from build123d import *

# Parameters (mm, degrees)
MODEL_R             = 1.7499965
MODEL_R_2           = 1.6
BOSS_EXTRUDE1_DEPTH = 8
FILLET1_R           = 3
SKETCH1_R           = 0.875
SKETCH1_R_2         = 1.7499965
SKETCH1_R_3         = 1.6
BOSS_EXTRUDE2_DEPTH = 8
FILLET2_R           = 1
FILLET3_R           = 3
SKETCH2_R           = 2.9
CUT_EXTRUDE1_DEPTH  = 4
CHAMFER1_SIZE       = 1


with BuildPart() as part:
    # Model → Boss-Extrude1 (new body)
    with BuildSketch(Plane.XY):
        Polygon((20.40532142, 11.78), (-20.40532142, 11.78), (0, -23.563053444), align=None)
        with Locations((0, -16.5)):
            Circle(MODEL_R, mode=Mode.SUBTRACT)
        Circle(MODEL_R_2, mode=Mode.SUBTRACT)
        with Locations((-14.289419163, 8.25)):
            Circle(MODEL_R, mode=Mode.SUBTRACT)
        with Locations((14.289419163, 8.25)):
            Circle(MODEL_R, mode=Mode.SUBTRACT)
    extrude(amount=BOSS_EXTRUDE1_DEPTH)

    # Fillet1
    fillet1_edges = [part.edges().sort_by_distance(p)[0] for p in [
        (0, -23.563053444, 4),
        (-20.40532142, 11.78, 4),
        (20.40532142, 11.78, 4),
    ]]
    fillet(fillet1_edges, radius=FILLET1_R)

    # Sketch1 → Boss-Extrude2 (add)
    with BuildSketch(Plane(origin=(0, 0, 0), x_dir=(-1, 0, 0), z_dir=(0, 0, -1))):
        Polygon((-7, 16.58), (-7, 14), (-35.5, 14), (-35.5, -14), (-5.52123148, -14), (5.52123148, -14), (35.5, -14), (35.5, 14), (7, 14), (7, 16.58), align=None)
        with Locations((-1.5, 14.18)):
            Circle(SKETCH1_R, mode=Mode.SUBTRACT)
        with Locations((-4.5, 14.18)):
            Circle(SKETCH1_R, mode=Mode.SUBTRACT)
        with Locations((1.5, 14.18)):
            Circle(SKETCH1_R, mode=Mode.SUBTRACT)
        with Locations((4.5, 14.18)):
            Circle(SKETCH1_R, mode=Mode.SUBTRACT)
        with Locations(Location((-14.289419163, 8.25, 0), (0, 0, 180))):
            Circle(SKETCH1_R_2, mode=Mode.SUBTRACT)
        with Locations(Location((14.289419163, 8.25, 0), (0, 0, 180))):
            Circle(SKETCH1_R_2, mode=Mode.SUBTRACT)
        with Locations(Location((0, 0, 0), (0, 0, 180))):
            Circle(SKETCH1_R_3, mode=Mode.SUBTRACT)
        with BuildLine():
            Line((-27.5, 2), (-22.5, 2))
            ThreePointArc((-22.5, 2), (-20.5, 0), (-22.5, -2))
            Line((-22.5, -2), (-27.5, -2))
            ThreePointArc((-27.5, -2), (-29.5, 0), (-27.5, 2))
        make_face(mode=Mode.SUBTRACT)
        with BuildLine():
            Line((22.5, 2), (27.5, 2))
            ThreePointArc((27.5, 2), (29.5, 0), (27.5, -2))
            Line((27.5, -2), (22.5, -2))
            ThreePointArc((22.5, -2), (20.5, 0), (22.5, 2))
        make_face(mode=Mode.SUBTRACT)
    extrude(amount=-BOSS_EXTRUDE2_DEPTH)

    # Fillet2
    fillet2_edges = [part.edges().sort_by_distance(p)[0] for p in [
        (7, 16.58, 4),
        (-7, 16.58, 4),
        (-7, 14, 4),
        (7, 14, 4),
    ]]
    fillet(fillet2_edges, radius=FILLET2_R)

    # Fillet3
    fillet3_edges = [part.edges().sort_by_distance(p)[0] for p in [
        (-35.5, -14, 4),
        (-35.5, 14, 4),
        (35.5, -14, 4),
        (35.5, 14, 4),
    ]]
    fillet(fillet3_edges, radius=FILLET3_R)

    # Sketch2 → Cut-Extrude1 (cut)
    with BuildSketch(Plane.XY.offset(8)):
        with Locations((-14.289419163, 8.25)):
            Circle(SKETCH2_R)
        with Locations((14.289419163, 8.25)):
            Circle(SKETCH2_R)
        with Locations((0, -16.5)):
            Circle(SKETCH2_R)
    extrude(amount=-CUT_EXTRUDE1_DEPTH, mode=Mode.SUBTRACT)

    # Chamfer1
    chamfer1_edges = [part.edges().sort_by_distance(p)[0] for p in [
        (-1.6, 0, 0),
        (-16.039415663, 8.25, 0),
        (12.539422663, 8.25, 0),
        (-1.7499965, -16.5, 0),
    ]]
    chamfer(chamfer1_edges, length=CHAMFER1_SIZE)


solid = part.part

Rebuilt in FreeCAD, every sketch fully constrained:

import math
import FreeCAD as App
import Part
import Sketcher
Q = App.Units.Quantity


def edges_at(feature, points):
    """Names of the edges that pass closest to the given points."""
    edges = feature.Shape.Edges
    near = lambda p: min(range(len(edges)), key=lambda i: edges[i].distToShape(Part.Vertex(*p))[0])
    return sorted({f"Edge{near(p) + 1}" for p in points})

doc = App.newDocument("Part")
params = doc.addObject("Spreadsheet::Sheet", "Params")
for row, (alias, value) in enumerate([
    ("sketch1_diameter", "3.2 mm"),
    ("pad1_length", "8 mm"),
    ("fillet_radius", "3 mm"),
    ("sketch2_radius", "2 mm"),
    ("sketch2_diameter", "3.2 mm"),
    ("sketch2_diameter2", "1.75 mm"),
    ("sketch2_width", "71 mm"),
    ("sketch2_width2", "14 mm"),
    ("pad2_length", "8 mm"),
    ("fillet2_radius", "1 mm"),
    ("fillet3_radius", "3 mm"),
    ("sketch3_diameter", "5.8 mm"),
    ("pocket1_length", "4 mm"),
    ("chamfer_size", "1 mm"),
], start=1):
    params.set(f"A{row}", alias)
    params.set(f"B{row}", "=" + value)
    params.setAlias(f"B{row}", alias)

body = doc.addObject("PartDesign::Body", "Body")

sketch1 = body.newObject("Sketcher::SketchObject", "Sketch")
sketch1.AttachmentSupport = (doc.getObject("XY_Plane"), [""])
sketch1.MapMode = "FlatFace"
sketch1.addGeometry([
    Part.LineSegment(App.Vector(20.405321, 11.78, 0), App.Vector(-20.405321, 11.78, 0)),
    Part.LineSegment(App.Vector(-20.405321, 11.78, 0), App.Vector(0, -23.563053, 0)),
    Part.LineSegment(App.Vector(0, -23.563053, 0), App.Vector(20.405321, 11.78, 0)),
    Part.Circle(App.Vector(0, -16.5, 0), App.Vector(0, 0, 1), 1.749996),
    Part.Circle(App.Vector(-14.289419, 8.25, 0), App.Vector(0, 0, 1), 1.749996),
    Part.Circle(App.Vector(0, 0, 0), App.Vector(0, 0, 1), 1.6),
    Part.Circle(App.Vector(14.289419, 8.25, 0), App.Vector(0, 0, 1), 1.749996),
], False)
sketch1.addConstraint([
    Sketcher.Constraint("Coincident", 0, 2, 1, 1),
    Sketcher.Constraint("Coincident", 1, 2, 2, 1),
    Sketcher.Constraint("Coincident", 2, 2, 0, 1),
    Sketcher.Constraint("Horizontal", 0),
    Sketcher.Constraint("Coincident", 5, 3, -1, 1),
    Sketcher.Constraint("Equal", 3, 4),
    Sketcher.Constraint("Equal", 4, 6),
    Sketcher.Constraint("Symmetric", 4, 3, 6, 3, -2),
    Sketcher.Constraint("PointOnObject", 3, 3, -2),
    Sketcher.Constraint("PointOnObject", 1, 2, -2),
    Sketcher.Constraint("Equal", 1, 2),
    Sketcher.Constraint("Diameter", 5, Q("3.2 mm")),
    Sketcher.Constraint("Angle", 1, Q("-60 deg")),
    Sketcher.Constraint("DistanceY", 3, 3, -1, 1, Q("16.5 mm")),
    Sketcher.Constraint("DistanceY", -1, 1, 4, 3, Q("8.25 mm")),
    Sketcher.Constraint("DistanceY", -1, 1, 0, 2, Q("11.78 mm")),
    Sketcher.Constraint("Diameter", 3, Q("3.499993 mm")),
    Sketcher.Constraint("DistanceX", 0, 2, 0, 1, Q("40.810643 mm")),
    Sketcher.Constraint("DistanceX", 4, 3, -1, 1, Q("14.289419 mm")),
])
sketch1.setExpression("Constraints[11]", "Params.sketch1_diameter")
pad1 = body.newObject("PartDesign::Pad", "Pad")
pad1.Profile = sketch1
pad1.setExpression("Length", "Params.pad1_length")
doc.recompute()

fillet = body.newObject("PartDesign::Fillet", "Fillet")
fillet.Base = (pad1, edges_at(pad1, [(0, -23.563, 4), (-20.405, 11.78, 4), (20.405, 11.78, 4)]))
fillet.setExpression("Radius", "Params.fillet_radius")

sketch2 = body.newObject("Sketcher::SketchObject", "Sketch001")
sketch2.AttachmentSupport = (doc.getObject("XY_Plane"), [""])
sketch2.MapMode = "FlatFace"
sketch2.addGeometry([
    Part.LineSegment(App.Vector(7, 16.58, 0), App.Vector(7, 14, 0)),
    Part.LineSegment(App.Vector(7, 14, 0), App.Vector(35.5, 14, 0)),
    Part.LineSegment(App.Vector(35.5, 14, 0), App.Vector(35.5, -14, 0)),
    Part.LineSegment(App.Vector(35.5, -14, 0), App.Vector(-35.5, -14, 0)),
    Part.LineSegment(App.Vector(-35.5, -14, 0), App.Vector(-35.5, 14, 0)),
    Part.LineSegment(App.Vector(-35.5, 14, 0), App.Vector(-7, 14, 0)),
    Part.LineSegment(App.Vector(-7, 14, 0), App.Vector(-7, 16.58, 0)),
    Part.LineSegment(App.Vector(-7, 16.58, 0), App.Vector(7, 16.58, 0)),
    Part.ArcOfCircle(Part.Circle(App.Vector(27.5, 0, 0), App.Vector(0, 0, 1), 2), math.radians(-90), math.radians(90)),
    Part.LineSegment(App.Vector(27.5, 2, 0), App.Vector(22.5, 2, 0)),
    Part.ArcOfCircle(Part.Circle(App.Vector(22.5, 0, 0), App.Vector(0, 0, 1), 2), math.radians(90), math.radians(270)),
    Part.LineSegment(App.Vector(22.5, -2, 0), App.Vector(27.5, -2, 0)),
    Part.Circle(App.Vector(0, 0, 0), App.Vector(0, 0, 1), 1.6),
    Part.ArcOfCircle(Part.Circle(App.Vector(-22.5, 0, 0), App.Vector(0, 0, 1), 2), math.radians(-90), math.radians(90)),
    Part.LineSegment(App.Vector(-22.5, 2, 0), App.Vector(-27.5, 2, 0)),
    Part.ArcOfCircle(Part.Circle(App.Vector(-27.5, 0, 0), App.Vector(0, 0, 1), 2), math.radians(90), math.radians(270)),
    Part.LineSegment(App.Vector(-27.5, -2, 0), App.Vector(-22.5, -2, 0)),
    Part.Circle(App.Vector(14.289419, 8.25, 0), App.Vector(0, 0, 1), 1.749996),
    Part.Circle(App.Vector(4.5, 14.18, 0), App.Vector(0, 0, 1), 0.875),
    Part.Circle(App.Vector(1.5, 14.18, 0), App.Vector(0, 0, 1), 0.875),
    Part.Circle(App.Vector(-14.289419, 8.25, 0), App.Vector(0, 0, 1), 1.749996),
    Part.Circle(App.Vector(-1.5, 14.18, 0), App.Vector(0, 0, 1), 0.875),
    Part.Circle(App.Vector(-4.5, 14.18, 0), App.Vector(0, 0, 1), 0.875),
], False)
sketch2.addConstraint([
    Sketcher.Constraint("Coincident", 0, 2, 1, 1),
    Sketcher.Constraint("Coincident", 1, 2, 2, 1),
    Sketcher.Constraint("Coincident", 2, 2, 3, 1),
    Sketcher.Constraint("Coincident", 3, 2, 4, 1),
    Sketcher.Constraint("Coincident", 4, 2, 5, 1),
    Sketcher.Constraint("Coincident", 5, 2, 6, 1),
    Sketcher.Constraint("Coincident", 6, 2, 7, 1),
    Sketcher.Constraint("Coincident", 7, 2, 0, 1),
    Sketcher.Constraint("Tangent", 8, 2, 9, 1),
    Sketcher.Constraint("Tangent", 9, 2, 10, 1),
    Sketcher.Constraint("Tangent", 10, 2, 11, 1),
    Sketcher.Constraint("Tangent", 11, 2, 8, 1),
    Sketcher.Constraint("Tangent", 13, 2, 14, 1),
    Sketcher.Constraint("Tangent", 14, 2, 15, 1),
    Sketcher.Constraint("Tangent", 15, 2, 16, 1),
    Sketcher.Constraint("Tangent", 16, 2, 13, 1),
    Sketcher.Constraint("Vertical", 0),
    Sketcher.Constraint("Horizontal", 1),
    Sketcher.Constraint("Vertical", 2),
    Sketcher.Constraint("Horizontal", 3),
    Sketcher.Constraint("Vertical", 4),
    Sketcher.Constraint("Horizontal", 5),
    Sketcher.Constraint("Vertical", 6),
    Sketcher.Constraint("Horizontal", 7),
    Sketcher.Constraint("Horizontal", 9),
    Sketcher.Constraint("Horizontal", 11),
    Sketcher.Constraint("Horizontal", 14),
    Sketcher.Constraint("Horizontal", 16),
    Sketcher.Constraint("Coincident", 12, 3, -1, 1),
    Sketcher.Constraint("Equal", 10, 13),
    Sketcher.Constraint("Equal", 18, 19),
    Sketcher.Constraint("Equal", 17, 20),
    Sketcher.Constraint("Equal", 19, 21),
    Sketcher.Constraint("Equal", 21, 22),
    Sketcher.Constraint("Symmetric", 10, 3, 13, 3, -1, 1),
    Sketcher.Constraint("Symmetric", 1, 2, 3, 2, -1, 1),
    Sketcher.Constraint("Symmetric", 8, 3, 15, 3, -2),
    Sketcher.Constraint("Symmetric", 17, 3, 20, 3, -2),
    Sketcher.Constraint("Symmetric", 19, 3, 21, 3, -2),
    Sketcher.Constraint("Symmetric", 18, 3, 22, 3, -2),
    Sketcher.Constraint("Symmetric", 0, 2, 5, 2, -2),
    Sketcher.Constraint("Horizontal", 18, 3, 19, 3),
    Sketcher.Constraint("Radius", 8, Q("2 mm")),
    Sketcher.Constraint("Diameter", 12, Q("3.2 mm")),
    Sketcher.Constraint("Diameter", 18, Q("1.75 mm")),
    Sketcher.Constraint("DistanceX", 3, 2, 3, 1, Q("71 mm")),
    Sketcher.Constraint("DistanceX", 7, 1, 7, 2, Q("14 mm")),
    Sketcher.Constraint("DistanceX", 9, 2, 9, 1, Q("5 mm")),
    Sketcher.Constraint("DistanceY", 2, 2, 2, 1, Q("28 mm")),
    Sketcher.Constraint("DistanceX", 13, 3, 10, 3, Q("45 mm")),
    Sketcher.Constraint("DistanceX", 18, 3, 10, 3, Q("18 mm")),
    Sketcher.Constraint("DistanceX", 19, 3, 18, 3, Q("3 mm")),
    Sketcher.Constraint("DistanceY", 0, 2, 0, 1, Q("2.58 mm")),
    Sketcher.Constraint("DistanceY", 22, 3, 6, 2, Q("2.4 mm")),
    Sketcher.Constraint("DistanceY", -1, 1, 17, 3, Q("8.25 mm")),
    Sketcher.Constraint("Diameter", 17, Q("3.499993 mm")),
    Sketcher.Constraint("DistanceX", -1, 1, 17, 3, Q("14.289419 mm")),
])
sketch2.setExpression("Constraints[42]", "Params.sketch2_radius")
sketch2.setExpression("Constraints[43]", "Params.sketch2_diameter")
sketch2.setExpression("Constraints[44]", "Params.sketch2_diameter2")
sketch2.setExpression("Constraints[45]", "Params.sketch2_width")
sketch2.setExpression("Constraints[46]", "Params.sketch2_width2")
pad2 = body.newObject("PartDesign::Pad", "Pad001")
pad2.Profile = sketch2
pad2.setExpression("Length", "Params.pad2_length")
doc.recompute()

fillet2 = body.newObject("PartDesign::Fillet", "Fillet001")
fillet2.Base = (pad2, edges_at(pad2, [
    (7, 16.58, 4),
    (-7, 16.58, 4),
    (-7, 14, 4),
    (7, 14, 4),
]))
fillet2.setExpression("Radius", "Params.fillet2_radius")
doc.recompute()

fillet3 = body.newObject("PartDesign::Fillet", "Fillet002")
fillet3.Base = (fillet2, edges_at(fillet2, [
    (-35.5, -14, 4),
    (-35.5, 14, 4),
    (35.5, -14, 4),
    (35.5, 14, 4),
]))
fillet3.setExpression("Radius", "Params.fillet3_radius")

sketch3 = body.newObject("Sketcher::SketchObject", "Sketch002")
sketch3.AttachmentSupport = (doc.getObject("XY_Plane"), [""])
sketch3.MapMode = "FlatFace"
sketch3.AttachmentOffset = App.Placement(App.Vector(0, 0, 8), App.Rotation())
sketch3.addGeometry([
    Part.Circle(App.Vector(-14.289419, 8.25, 0), App.Vector(0, 0, 1), 2.9),
    Part.Circle(App.Vector(14.289419, 8.25, 0), App.Vector(0, 0, 1), 2.9),
    Part.Circle(App.Vector(0, -16.5, 0), App.Vector(0, 0, 1), 2.9),
], False)
sketch3.addConstraint([
    Sketcher.Constraint("Equal", 0, 1),
    Sketcher.Constraint("Equal", 1, 2),
    Sketcher.Constraint("Symmetric", 0, 3, 1, 3, -2),
    Sketcher.Constraint("PointOnObject", 2, 3, -2),
    Sketcher.Constraint("Diameter", 0, Q("5.8 mm")),
    Sketcher.Constraint("DistanceY", 2, 3, -1, 1, Q("16.5 mm")),
    Sketcher.Constraint("DistanceY", -1, 1, 0, 3, Q("8.25 mm")),
    Sketcher.Constraint("DistanceX", 0, 3, -1, 1, Q("14.289419 mm")),
])
sketch3.setExpression("Constraints[4]", "Params.sketch3_diameter")
pocket1 = body.newObject("PartDesign::Pocket", "Pocket")
pocket1.Profile = sketch3
pocket1.setExpression("Length", "Params.pocket1_length")
doc.recompute()

chamfer = body.newObject("PartDesign::Chamfer", "Chamfer")
chamfer.Base = (pocket1, edges_at(pocket1, [
    (-1.6, 0, 0),
    (-16.039, 8.25, 0),
    (12.539, 8.25, 0),
    (-1.75, -16.5, 0),
]))
chamfer.setExpression("Size", "Params.chamfer_size")

doc.recompute()
